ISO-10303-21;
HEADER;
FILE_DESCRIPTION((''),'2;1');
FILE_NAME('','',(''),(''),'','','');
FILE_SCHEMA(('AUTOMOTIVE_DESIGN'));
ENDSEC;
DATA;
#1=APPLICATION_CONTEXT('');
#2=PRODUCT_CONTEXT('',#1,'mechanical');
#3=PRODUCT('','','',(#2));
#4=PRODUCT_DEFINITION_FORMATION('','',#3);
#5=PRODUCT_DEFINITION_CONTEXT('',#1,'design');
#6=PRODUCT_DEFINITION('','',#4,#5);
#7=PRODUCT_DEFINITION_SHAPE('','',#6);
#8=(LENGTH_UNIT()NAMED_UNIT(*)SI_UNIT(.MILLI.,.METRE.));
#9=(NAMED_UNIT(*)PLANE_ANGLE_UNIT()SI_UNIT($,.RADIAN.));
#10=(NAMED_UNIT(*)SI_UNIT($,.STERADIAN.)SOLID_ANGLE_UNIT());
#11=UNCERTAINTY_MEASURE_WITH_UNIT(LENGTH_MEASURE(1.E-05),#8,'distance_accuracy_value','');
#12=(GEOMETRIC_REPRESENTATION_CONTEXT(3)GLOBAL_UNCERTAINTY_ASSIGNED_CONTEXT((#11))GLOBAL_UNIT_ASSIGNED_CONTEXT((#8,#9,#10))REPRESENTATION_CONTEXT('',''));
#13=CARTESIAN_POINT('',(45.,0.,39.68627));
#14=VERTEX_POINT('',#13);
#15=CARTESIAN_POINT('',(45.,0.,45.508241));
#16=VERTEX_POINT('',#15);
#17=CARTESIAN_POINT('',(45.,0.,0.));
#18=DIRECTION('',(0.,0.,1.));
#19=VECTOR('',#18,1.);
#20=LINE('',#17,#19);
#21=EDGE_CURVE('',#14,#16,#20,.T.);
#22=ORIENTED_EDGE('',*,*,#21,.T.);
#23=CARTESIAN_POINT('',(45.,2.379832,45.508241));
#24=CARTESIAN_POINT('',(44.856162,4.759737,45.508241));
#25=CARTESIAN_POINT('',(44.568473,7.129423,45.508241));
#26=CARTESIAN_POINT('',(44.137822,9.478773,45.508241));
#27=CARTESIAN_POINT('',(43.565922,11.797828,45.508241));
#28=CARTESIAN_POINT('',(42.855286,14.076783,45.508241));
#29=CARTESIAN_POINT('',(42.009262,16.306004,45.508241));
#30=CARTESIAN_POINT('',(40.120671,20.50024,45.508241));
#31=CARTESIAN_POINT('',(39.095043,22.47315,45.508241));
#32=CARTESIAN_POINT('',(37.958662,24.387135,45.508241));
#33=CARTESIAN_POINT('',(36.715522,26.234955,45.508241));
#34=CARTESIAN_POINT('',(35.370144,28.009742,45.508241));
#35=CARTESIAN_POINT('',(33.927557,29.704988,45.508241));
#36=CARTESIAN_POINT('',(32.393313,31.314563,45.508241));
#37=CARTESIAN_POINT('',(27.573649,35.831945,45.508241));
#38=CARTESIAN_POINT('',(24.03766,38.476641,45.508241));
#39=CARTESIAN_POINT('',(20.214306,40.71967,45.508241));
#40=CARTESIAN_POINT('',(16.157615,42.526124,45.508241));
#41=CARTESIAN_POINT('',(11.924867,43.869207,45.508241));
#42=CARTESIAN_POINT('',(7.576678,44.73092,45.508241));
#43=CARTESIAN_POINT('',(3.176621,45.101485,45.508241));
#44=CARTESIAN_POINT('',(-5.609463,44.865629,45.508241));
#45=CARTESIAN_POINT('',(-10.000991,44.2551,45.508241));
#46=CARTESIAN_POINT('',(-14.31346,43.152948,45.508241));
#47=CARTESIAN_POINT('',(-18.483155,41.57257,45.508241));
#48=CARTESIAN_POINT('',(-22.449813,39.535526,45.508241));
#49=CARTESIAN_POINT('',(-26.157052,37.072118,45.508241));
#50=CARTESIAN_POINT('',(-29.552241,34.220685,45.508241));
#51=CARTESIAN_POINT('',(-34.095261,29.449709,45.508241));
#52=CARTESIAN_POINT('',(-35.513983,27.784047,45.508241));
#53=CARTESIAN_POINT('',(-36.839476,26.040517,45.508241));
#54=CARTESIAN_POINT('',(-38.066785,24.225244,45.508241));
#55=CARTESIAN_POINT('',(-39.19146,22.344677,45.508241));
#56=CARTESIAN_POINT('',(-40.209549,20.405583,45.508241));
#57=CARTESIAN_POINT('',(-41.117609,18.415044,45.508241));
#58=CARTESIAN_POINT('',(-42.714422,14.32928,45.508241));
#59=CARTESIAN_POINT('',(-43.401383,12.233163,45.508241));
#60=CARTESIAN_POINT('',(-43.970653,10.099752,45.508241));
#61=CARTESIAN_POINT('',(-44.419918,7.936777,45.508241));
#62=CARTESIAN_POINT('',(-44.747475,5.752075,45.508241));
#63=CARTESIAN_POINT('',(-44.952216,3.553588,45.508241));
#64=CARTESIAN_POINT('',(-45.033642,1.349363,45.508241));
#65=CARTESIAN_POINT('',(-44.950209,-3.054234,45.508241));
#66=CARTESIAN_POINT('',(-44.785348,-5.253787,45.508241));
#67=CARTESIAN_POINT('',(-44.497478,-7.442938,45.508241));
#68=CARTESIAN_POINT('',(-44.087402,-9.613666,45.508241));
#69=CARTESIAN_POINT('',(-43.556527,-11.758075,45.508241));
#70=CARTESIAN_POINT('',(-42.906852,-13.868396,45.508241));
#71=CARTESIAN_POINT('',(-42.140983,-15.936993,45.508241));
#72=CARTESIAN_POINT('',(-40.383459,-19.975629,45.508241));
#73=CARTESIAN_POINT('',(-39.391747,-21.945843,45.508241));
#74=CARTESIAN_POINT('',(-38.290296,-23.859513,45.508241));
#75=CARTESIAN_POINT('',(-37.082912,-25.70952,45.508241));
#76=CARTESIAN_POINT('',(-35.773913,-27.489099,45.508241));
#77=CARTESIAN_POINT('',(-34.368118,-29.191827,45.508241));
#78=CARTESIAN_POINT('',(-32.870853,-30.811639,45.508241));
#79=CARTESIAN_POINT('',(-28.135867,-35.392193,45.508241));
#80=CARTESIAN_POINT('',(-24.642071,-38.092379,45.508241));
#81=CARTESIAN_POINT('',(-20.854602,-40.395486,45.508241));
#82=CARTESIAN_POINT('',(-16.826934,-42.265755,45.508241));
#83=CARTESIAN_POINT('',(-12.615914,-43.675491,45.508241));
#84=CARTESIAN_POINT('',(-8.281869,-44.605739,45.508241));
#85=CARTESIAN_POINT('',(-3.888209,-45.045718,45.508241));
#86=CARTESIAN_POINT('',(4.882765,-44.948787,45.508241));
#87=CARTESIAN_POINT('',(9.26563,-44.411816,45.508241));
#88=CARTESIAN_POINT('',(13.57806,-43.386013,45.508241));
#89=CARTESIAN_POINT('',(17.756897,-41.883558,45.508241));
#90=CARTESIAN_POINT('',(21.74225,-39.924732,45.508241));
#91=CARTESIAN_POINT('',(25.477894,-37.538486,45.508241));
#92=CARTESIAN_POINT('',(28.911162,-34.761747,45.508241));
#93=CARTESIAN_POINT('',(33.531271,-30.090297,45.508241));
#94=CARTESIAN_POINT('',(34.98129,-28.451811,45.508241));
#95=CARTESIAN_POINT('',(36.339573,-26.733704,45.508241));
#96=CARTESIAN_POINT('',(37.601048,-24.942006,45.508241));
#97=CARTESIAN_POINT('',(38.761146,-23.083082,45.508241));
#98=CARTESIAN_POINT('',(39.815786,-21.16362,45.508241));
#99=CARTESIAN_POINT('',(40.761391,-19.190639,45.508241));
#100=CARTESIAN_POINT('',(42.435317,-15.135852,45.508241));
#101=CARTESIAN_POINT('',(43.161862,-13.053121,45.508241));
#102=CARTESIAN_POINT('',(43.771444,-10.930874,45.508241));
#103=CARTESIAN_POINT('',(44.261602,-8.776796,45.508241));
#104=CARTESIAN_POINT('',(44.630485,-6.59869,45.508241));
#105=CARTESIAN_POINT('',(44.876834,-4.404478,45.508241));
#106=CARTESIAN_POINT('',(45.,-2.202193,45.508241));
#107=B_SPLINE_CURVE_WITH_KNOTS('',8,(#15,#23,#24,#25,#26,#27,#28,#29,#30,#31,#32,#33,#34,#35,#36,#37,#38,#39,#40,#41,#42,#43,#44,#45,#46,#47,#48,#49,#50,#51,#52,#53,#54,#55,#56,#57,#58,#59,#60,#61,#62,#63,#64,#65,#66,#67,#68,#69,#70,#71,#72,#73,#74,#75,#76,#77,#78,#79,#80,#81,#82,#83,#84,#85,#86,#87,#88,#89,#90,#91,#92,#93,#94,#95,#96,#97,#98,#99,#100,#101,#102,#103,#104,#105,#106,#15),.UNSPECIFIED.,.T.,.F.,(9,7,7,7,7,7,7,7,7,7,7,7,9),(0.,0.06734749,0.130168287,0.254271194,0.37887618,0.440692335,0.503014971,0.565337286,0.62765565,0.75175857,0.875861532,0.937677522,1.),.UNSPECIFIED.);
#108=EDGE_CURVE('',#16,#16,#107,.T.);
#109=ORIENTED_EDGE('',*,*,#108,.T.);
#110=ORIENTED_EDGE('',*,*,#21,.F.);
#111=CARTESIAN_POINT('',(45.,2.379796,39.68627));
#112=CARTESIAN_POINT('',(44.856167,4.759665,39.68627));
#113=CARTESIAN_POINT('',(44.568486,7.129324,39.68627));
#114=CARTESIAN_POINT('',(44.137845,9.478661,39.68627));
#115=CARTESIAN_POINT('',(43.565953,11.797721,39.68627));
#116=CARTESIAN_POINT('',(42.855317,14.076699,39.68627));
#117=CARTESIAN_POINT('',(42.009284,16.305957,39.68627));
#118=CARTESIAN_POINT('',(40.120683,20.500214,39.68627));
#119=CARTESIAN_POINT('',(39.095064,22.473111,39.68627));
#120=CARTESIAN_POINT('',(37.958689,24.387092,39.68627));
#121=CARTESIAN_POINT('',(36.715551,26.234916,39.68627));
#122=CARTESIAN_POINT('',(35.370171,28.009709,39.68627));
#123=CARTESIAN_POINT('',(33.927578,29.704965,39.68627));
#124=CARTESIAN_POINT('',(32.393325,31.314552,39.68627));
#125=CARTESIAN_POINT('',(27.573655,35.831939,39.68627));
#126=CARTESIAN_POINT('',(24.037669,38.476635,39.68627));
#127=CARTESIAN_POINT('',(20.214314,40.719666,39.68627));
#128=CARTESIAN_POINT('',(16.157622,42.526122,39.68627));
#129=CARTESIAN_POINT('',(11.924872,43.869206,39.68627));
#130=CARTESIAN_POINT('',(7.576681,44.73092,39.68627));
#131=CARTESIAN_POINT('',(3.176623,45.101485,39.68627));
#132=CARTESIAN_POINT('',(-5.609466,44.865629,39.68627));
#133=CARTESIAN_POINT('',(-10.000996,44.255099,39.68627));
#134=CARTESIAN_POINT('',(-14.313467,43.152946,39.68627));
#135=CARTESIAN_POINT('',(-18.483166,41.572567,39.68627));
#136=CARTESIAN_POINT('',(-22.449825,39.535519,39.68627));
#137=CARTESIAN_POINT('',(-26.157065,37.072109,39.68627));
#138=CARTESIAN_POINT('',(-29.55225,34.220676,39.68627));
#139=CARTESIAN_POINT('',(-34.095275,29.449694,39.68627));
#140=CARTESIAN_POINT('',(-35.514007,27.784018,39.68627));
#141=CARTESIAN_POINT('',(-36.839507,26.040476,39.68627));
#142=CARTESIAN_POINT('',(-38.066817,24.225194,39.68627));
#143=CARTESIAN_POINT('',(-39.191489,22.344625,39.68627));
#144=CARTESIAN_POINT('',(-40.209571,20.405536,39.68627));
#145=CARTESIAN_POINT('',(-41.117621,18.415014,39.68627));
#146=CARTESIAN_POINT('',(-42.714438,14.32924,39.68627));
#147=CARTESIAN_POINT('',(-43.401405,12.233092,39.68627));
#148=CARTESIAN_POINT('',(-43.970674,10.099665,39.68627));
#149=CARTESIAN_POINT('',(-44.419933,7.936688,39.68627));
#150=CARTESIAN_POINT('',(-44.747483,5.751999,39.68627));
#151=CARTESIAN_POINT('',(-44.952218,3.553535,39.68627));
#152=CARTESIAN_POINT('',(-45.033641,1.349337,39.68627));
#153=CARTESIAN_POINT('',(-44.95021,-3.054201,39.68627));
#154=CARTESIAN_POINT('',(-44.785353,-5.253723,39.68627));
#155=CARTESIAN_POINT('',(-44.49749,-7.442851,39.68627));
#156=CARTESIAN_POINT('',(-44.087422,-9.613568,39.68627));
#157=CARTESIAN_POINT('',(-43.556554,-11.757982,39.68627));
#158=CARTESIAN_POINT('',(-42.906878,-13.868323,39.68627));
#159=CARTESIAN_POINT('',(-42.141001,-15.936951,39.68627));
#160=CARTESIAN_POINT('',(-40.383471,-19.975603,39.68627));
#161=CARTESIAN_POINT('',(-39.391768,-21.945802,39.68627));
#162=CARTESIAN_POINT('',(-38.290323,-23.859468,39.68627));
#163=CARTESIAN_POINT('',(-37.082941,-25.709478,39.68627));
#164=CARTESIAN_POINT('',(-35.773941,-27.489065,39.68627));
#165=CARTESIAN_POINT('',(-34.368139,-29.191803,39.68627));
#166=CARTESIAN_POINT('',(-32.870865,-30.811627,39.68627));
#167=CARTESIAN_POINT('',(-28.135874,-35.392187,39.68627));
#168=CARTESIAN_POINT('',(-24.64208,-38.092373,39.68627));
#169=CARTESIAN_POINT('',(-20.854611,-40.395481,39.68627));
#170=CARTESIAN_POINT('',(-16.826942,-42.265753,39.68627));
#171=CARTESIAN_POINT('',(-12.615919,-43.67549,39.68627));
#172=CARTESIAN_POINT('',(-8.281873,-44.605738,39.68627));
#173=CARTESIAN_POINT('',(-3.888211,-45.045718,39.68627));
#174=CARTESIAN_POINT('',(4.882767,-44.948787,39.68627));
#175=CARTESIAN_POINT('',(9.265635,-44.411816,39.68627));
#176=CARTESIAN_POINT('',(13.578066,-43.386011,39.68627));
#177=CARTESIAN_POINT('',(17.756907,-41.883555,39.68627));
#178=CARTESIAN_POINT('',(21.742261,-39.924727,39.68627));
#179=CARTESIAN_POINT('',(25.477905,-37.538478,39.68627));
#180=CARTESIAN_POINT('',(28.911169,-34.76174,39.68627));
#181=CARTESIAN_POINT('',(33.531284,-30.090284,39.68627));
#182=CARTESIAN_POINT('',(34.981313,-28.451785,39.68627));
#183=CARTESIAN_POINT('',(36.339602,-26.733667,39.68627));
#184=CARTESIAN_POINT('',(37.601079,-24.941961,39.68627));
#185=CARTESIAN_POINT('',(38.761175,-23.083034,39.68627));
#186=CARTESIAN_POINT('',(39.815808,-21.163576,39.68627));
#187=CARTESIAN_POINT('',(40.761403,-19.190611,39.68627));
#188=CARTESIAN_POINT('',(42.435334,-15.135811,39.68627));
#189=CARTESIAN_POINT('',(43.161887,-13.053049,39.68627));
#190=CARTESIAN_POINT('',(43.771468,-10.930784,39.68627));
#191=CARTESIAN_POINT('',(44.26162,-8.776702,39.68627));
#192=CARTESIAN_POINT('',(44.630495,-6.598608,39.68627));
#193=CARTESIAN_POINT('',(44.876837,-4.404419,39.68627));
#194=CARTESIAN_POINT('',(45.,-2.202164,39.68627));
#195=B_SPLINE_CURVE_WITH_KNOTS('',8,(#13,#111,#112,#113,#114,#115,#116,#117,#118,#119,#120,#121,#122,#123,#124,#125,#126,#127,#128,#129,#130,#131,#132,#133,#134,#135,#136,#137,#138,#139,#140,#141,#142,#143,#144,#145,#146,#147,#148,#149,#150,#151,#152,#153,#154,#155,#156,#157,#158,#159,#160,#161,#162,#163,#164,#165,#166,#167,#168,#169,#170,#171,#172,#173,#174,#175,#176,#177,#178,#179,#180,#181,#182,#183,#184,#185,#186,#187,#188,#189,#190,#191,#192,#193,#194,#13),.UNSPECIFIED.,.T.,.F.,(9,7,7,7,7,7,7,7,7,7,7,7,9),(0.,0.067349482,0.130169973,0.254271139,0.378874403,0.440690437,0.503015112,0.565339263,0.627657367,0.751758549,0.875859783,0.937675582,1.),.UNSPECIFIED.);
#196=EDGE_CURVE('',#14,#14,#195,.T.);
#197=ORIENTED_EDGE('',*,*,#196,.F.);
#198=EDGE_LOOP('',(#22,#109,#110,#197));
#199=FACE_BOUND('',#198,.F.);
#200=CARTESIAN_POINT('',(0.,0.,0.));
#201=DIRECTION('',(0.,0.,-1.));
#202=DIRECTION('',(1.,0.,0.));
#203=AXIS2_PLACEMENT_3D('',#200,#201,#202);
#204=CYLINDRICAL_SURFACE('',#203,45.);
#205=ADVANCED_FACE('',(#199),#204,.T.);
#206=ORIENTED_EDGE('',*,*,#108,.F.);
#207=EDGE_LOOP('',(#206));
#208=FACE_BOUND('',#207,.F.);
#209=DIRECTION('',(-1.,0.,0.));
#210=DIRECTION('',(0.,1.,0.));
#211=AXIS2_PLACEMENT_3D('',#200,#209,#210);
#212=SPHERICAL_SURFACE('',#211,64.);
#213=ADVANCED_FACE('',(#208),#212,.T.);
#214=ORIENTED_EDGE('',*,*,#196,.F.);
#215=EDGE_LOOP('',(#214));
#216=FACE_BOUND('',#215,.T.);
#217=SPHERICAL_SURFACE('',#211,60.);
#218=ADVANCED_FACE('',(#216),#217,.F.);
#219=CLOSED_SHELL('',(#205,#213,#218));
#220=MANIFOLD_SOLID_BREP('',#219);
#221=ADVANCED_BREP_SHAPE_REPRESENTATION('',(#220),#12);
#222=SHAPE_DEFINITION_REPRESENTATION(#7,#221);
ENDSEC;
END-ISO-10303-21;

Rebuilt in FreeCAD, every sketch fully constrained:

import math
import FreeCAD as App
import Part
import Sketcher

V = App.Vector

doc = App.newDocument("Part")
params = doc.addObject("Spreadsheet::Sheet", "Params")
for row, (alias, value) in enumerate([
    ("sketch1_radius", "60 mm"),
    ("sketch1_radius2", "64 mm"),
    ("revolution_angle", "180 deg"),
    ("sketch2_diameter", "128 mm"),
    ("sketch2_diameter2", "90 mm"),
    ("pocket1_length", "50 mm"),
], start=1):
    params.set(f"A{row}", alias)
    params.set(f"B{row}", "=" + value)
    params.setAlias(f"B{row}", alias)

body = doc.addObject("PartDesign::Body", "Body")

# Sketch on XY plane
sketch1 = body.newObject("Sketcher::SketchObject", "Sketch")
sketch1.AttachmentSupport = (doc.getObject("XY_Plane"), [""])
sketch1.MapMode = "FlatFace"
sketch1.addGeometry([
    Part.ArcOfCircle(Part.Circle(V(0, 0, 0), V(0, 0, 1), 60), math.radians(0), math.radians(180)),
    Part.LineSegment(V(60, 0, 0), V(64, 0, 0)),
    Part.ArcOfCircle(Part.Circle(V(0, 0, 0), V(0, 0, 1), 64), math.radians(0), math.radians(180)),
    Part.LineSegment(V(-64, 0, 0), V(-60, 0, 0)),
], False)
sketch1.addConstraint([
    Sketcher.Constraint("Coincident", 0, 1, 1, 1),
    Sketcher.Constraint("Coincident", 1, 2, 2, 1),
    Sketcher.Constraint("Coincident", 2, 2, 3, 1),
    Sketcher.Constraint("Coincident", 3, 2, 0, 2),
    Sketcher.Constraint("Horizontal", 1),
    Sketcher.Constraint("Horizontal", 3),
    Sketcher.Constraint("Coincident", 0, 3, -1, 1),
    Sketcher.Constraint("Coincident", 2, 3, -1, 1),
    Sketcher.Constraint("PointOnObject", 0, 1, -1),
    Sketcher.Constraint("PointOnObject", 2, 2, -1),
    Sketcher.Constraint("Radius", 0, 60.0),
    Sketcher.Constraint("Radius", 2, 64.0),
])
sketch1.setExpression("Constraints[10]", "Params.sketch1_radius")
sketch1.setExpression("Constraints[11]", "Params.sketch1_radius2")
revolution = body.newObject("PartDesign::Revolution", "Revolution")
revolution.Profile = sketch1
revolution.ReferenceAxis = (sketch1, ["H_Axis"])
revolution.setExpression("Angle", "Params.revolution_angle")

# Sketch on XY plane
sketch2 = body.newObject("Sketcher::SketchObject", "Sketch001")
sketch2.AttachmentSupport = (doc.getObject("XY_Plane"), [""])
sketch2.MapMode = "FlatFace"
sketch2.addGeometry([
    Part.Circle(V(0, 0, 0), V(0, 0, 1), 64),
    Part.Circle(V(0, 0, 0), V(0, 0, 1), 45),
], False)
sketch2.addConstraint([
    Sketcher.Constraint("Coincident", 0, 3, -1, 1),
    Sketcher.Constraint("Coincident", 1, 3, -1, 1),
    Sketcher.Constraint("Diameter", 0, 128.0),
    Sketcher.Constraint("Diameter", 1, 90.0),
])
sketch2.setExpression("Constraints[2]", "Params.sketch2_diameter")
sketch2.setExpression("Constraints[3]", "Params.sketch2_diameter2")
pocket1 = body.newObject("PartDesign::Pocket", "Pocket")
pocket1.Profile = sketch2
pocket1.setExpression("Length", "Params.pocket1_length")
pocket1.Reversed = True

doc.recompute()
